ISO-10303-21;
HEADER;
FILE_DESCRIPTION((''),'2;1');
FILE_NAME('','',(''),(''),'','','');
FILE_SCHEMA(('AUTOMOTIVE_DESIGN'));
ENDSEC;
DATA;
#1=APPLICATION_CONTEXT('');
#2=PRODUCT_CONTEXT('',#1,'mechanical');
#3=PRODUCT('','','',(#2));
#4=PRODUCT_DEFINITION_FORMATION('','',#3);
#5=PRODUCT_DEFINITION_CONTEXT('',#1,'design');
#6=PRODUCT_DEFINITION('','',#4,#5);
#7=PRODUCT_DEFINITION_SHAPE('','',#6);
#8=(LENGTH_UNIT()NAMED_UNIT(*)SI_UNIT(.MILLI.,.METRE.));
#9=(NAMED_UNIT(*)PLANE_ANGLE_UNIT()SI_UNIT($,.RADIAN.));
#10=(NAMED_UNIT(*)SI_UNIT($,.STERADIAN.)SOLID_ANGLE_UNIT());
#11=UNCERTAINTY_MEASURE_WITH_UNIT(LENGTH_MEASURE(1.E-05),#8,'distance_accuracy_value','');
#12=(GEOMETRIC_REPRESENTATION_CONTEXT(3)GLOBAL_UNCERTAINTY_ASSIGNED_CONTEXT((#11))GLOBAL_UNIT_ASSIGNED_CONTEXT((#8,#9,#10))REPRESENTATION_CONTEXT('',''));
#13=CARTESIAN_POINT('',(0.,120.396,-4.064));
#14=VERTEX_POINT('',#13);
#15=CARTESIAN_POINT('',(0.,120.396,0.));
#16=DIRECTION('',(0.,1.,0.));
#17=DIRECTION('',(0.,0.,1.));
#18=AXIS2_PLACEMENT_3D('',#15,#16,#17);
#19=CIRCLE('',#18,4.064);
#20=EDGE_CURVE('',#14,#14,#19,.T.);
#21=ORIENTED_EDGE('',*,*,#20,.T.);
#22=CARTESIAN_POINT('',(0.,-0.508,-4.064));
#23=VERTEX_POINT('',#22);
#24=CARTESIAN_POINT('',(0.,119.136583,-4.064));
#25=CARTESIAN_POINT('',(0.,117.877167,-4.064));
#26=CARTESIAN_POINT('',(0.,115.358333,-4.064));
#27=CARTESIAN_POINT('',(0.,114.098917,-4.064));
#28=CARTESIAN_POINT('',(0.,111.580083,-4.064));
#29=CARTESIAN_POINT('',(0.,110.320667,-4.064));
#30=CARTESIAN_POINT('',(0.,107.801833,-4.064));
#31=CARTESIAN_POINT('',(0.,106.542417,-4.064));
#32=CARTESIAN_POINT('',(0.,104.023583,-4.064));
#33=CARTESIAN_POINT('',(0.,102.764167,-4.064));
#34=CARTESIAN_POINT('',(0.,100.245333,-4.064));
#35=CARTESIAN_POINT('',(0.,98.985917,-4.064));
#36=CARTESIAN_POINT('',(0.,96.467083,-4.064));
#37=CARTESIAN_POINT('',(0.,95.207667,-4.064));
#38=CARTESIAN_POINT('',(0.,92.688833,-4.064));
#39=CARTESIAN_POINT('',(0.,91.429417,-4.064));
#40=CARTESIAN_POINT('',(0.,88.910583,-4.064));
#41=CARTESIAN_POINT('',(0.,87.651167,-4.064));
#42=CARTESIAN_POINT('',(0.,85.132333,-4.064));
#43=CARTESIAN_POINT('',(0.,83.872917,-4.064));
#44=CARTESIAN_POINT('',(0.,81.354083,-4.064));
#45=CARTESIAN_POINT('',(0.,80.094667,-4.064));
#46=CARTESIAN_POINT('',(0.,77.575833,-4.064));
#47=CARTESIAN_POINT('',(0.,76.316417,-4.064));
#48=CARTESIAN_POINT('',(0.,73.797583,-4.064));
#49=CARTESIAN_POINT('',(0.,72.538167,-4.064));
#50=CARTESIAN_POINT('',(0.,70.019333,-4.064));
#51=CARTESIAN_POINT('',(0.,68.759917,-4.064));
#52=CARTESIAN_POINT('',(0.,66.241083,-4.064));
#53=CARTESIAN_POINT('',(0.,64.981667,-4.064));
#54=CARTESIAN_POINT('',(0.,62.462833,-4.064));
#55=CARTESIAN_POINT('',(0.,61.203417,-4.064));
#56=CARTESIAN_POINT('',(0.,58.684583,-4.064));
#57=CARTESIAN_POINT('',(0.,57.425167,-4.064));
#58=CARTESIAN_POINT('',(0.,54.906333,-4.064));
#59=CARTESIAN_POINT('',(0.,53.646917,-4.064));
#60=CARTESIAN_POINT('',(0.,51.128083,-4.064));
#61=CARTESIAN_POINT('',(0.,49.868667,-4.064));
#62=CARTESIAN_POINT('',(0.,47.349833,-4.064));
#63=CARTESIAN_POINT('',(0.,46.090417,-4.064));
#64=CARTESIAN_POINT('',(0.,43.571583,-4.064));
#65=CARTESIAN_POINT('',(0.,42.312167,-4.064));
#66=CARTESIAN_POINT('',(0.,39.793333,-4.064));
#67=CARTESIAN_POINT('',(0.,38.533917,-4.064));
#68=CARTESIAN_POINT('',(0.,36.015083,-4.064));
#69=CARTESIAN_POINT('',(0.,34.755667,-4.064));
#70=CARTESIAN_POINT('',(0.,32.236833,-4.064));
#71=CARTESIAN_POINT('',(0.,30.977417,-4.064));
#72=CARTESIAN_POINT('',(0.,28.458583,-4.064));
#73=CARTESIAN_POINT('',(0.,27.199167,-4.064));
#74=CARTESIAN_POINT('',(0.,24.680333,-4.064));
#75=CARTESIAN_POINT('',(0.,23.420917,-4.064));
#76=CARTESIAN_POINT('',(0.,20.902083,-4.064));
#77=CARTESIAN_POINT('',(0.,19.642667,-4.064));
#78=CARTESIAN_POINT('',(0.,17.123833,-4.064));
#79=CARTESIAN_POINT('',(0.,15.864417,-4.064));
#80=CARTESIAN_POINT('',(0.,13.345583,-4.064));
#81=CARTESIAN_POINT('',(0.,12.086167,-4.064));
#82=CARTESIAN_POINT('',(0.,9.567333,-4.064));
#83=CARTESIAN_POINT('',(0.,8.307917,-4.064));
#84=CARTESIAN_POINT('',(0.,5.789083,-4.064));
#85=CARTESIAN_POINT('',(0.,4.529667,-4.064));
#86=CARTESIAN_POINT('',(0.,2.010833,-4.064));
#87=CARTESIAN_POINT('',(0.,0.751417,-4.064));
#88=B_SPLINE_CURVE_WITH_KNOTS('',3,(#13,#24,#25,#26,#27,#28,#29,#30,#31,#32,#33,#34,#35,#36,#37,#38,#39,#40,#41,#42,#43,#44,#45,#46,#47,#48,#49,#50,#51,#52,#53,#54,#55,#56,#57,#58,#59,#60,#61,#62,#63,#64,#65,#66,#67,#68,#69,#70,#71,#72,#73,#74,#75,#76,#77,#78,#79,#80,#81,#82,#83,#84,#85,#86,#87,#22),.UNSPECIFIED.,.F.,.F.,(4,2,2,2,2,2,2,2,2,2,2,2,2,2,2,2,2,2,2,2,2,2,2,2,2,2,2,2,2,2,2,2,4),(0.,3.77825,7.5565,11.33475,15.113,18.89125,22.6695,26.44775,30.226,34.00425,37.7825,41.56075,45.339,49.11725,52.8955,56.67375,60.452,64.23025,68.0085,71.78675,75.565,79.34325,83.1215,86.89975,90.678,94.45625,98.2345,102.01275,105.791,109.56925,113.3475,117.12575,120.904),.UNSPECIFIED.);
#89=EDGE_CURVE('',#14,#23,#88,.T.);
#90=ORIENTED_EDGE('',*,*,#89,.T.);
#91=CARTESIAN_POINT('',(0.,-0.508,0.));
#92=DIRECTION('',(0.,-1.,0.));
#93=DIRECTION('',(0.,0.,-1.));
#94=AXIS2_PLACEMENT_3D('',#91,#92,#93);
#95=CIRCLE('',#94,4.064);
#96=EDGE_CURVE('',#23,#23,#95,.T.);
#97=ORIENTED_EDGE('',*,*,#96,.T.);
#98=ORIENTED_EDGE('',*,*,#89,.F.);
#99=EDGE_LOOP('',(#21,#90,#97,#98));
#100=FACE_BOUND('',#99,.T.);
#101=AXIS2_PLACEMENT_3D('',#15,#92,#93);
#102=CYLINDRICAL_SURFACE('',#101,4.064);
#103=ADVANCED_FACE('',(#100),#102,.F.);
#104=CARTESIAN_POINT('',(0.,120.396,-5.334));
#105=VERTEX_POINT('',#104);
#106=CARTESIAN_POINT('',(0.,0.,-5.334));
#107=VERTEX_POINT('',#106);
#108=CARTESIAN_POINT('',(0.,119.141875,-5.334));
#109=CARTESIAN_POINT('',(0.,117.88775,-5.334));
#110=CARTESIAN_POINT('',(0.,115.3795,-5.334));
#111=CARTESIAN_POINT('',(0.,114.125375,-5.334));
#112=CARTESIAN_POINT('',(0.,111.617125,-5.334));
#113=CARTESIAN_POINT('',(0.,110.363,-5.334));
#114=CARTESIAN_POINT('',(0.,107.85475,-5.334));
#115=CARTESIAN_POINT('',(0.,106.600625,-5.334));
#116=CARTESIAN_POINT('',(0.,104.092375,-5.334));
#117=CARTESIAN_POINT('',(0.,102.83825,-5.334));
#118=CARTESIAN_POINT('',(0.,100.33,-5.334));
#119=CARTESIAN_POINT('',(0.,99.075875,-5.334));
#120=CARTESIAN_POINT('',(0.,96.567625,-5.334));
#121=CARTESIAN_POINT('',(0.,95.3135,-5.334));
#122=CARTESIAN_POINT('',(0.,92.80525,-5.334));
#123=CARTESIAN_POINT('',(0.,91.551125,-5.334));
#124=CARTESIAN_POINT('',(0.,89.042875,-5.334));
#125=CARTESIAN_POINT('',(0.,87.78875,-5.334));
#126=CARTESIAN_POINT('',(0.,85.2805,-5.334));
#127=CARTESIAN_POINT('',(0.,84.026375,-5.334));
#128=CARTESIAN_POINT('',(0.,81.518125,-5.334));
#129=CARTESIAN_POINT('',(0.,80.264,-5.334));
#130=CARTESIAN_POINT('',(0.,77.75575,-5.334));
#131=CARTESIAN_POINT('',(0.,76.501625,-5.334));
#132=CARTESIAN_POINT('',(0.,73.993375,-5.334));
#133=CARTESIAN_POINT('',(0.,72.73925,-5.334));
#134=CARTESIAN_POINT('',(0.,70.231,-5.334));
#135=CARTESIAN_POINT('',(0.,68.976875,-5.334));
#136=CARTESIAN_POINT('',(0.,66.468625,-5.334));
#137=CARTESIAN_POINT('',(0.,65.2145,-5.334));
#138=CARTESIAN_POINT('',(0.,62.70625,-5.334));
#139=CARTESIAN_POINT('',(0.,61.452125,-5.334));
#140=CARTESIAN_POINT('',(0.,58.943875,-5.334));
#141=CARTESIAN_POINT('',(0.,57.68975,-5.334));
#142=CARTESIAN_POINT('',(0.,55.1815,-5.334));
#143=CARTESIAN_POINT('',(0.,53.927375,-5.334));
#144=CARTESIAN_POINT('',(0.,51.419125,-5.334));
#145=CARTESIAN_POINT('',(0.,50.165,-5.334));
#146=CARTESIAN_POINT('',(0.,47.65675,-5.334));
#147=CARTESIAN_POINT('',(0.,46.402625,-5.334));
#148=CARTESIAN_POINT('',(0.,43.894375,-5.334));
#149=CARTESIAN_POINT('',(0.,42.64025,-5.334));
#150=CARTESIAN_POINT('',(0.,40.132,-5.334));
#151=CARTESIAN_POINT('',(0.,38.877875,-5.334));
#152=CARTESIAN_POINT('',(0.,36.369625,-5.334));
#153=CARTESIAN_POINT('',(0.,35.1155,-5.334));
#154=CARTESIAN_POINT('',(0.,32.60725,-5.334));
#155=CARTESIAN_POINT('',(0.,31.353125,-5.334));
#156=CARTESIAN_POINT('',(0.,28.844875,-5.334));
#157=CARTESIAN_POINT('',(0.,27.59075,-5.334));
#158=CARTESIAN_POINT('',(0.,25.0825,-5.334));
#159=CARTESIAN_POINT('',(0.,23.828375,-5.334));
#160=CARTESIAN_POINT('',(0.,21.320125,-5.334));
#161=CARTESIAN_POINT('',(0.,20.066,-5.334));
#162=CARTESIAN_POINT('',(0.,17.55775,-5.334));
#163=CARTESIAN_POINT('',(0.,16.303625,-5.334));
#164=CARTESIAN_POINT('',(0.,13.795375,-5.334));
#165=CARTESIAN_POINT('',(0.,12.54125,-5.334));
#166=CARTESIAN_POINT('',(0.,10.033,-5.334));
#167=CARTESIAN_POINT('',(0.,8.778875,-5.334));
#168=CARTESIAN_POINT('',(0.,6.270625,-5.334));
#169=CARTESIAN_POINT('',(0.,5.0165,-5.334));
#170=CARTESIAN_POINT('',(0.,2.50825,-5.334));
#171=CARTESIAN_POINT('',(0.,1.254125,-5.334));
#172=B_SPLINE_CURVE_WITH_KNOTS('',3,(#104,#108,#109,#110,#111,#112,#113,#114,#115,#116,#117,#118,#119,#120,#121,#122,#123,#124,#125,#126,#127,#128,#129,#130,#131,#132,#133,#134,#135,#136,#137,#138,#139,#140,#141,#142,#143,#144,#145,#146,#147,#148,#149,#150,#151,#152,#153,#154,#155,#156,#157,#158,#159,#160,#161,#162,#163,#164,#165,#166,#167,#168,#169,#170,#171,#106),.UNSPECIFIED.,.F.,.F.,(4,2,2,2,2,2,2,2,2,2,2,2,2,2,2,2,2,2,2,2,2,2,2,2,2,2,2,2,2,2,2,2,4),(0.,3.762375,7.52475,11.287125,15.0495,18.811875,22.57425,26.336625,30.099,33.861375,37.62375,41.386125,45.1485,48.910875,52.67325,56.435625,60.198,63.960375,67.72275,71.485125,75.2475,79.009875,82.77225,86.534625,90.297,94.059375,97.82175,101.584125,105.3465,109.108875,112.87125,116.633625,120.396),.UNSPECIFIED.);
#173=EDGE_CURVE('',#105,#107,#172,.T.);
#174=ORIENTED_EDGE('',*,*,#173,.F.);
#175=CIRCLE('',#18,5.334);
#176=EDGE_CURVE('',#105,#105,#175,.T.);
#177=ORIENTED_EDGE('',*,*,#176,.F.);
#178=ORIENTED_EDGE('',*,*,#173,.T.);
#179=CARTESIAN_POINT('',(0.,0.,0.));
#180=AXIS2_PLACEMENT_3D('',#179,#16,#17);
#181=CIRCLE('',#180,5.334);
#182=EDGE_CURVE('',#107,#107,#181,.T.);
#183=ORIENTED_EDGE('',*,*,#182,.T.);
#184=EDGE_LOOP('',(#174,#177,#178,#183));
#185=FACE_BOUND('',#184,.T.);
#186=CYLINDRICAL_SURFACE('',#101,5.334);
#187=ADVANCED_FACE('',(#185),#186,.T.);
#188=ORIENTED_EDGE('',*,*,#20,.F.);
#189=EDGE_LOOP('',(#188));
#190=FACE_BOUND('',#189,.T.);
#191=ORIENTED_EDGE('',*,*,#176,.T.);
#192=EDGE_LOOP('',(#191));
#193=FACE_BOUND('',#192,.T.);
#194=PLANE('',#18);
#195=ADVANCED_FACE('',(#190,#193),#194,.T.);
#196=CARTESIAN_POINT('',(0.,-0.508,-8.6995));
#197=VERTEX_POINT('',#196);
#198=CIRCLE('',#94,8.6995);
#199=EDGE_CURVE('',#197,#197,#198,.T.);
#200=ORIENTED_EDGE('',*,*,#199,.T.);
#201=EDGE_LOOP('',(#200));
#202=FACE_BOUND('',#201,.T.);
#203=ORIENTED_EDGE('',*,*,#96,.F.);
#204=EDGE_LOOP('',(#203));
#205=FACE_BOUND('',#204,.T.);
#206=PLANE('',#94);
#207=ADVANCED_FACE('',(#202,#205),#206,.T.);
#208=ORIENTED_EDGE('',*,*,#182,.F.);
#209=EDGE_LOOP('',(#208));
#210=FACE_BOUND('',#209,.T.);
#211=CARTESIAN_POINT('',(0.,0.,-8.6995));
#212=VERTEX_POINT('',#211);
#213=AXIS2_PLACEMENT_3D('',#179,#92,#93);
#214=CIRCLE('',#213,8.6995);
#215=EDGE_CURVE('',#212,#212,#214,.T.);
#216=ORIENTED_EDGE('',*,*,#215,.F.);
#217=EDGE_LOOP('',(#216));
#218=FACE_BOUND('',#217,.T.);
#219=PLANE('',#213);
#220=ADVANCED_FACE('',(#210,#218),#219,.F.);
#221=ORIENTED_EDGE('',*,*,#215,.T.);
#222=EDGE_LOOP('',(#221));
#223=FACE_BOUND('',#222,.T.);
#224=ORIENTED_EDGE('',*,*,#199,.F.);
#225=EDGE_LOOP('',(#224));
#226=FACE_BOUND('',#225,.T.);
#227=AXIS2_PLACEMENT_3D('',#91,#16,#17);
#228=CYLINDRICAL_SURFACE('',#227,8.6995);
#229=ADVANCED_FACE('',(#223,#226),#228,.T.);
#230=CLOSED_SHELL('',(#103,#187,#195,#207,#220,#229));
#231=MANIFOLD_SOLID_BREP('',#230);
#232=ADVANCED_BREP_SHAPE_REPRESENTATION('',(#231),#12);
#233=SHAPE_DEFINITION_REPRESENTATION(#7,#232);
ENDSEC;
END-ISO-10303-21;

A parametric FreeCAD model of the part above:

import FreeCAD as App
import Part
import Sketcher
from FreeCAD import Vector
Q = App.Units.Quantity

doc = App.newDocument("Part")
body = doc.addObject("PartDesign::Body", "Body")

sketch1 = body.newObject("Sketcher::SketchObject", "Sketch")
sketch1.AttachmentSupport = (doc.getObject("XZ_Plane"), [""])
sketch1.MapMode = "FlatFace"
sketch1.addGeometry(Part.Circle(Vector(0, 0, 0), Vector(0, 0, 1), 5.334), False)
sketch1.addGeometry(Part.Circle(Vector(0, 0, 0), Vector(0, 0, 1), 4.064), False)
sketch1.addConstraint(Sketcher.Constraint("Coincident", 0, 3, -1, 1))
sketch1.addConstraint(Sketcher.Constraint("Coincident", 1, 3, -1, 1))
sketch1.addConstraint(Sketcher.Constraint("Diameter", 0, Q("0.42 in")))
sketch1.addConstraint(Sketcher.Constraint("Diameter", 1, Q("0.32 in")))
pad1 = body.newObject("PartDesign::Pad", "Pad")
pad1.Profile = sketch1
pad1.Length = Q("4.74 in")
pad1.Reversed = True

sketch2 = body.newObject("Sketcher::SketchObject", "Sketch001")
sketch2.AttachmentSupport = (doc.getObject("XZ_Plane"), [""])
sketch2.MapMode = "FlatFace"
sketch2.AttachmentOffset = App.Placement(Vector(0, 0, 0.02 * 25.4), App.Rotation())
sketch2.addGeometry(Part.Circle(Vector(0, 0, 0), Vector(0, 0, 1), 8.6995), False)
sketch2.addGeometry(Part.Circle(Vector(0, 0, 0), Vector(0, 0, 1), 4.064), False)
sketch2.addConstraint(Sketcher.Constraint("Coincident", 0, 3, -1, 1))
sketch2.addConstraint(Sketcher.Constraint("Coincident", 1, 3, -1, 1))
sketch2.addConstraint(Sketcher.Constraint("Diameter", 1, Q("0.32 in")))
sketch2.addConstraint(Sketcher.Constraint("Diameter", 0, Q("0.685 in")))
pad2 = body.newObject("PartDesign::Pad", "Pad001")
pad2.Profile = sketch2
pad2.Length = Q("0.02 in")
pad2.Reversed = True

doc.recompute()
